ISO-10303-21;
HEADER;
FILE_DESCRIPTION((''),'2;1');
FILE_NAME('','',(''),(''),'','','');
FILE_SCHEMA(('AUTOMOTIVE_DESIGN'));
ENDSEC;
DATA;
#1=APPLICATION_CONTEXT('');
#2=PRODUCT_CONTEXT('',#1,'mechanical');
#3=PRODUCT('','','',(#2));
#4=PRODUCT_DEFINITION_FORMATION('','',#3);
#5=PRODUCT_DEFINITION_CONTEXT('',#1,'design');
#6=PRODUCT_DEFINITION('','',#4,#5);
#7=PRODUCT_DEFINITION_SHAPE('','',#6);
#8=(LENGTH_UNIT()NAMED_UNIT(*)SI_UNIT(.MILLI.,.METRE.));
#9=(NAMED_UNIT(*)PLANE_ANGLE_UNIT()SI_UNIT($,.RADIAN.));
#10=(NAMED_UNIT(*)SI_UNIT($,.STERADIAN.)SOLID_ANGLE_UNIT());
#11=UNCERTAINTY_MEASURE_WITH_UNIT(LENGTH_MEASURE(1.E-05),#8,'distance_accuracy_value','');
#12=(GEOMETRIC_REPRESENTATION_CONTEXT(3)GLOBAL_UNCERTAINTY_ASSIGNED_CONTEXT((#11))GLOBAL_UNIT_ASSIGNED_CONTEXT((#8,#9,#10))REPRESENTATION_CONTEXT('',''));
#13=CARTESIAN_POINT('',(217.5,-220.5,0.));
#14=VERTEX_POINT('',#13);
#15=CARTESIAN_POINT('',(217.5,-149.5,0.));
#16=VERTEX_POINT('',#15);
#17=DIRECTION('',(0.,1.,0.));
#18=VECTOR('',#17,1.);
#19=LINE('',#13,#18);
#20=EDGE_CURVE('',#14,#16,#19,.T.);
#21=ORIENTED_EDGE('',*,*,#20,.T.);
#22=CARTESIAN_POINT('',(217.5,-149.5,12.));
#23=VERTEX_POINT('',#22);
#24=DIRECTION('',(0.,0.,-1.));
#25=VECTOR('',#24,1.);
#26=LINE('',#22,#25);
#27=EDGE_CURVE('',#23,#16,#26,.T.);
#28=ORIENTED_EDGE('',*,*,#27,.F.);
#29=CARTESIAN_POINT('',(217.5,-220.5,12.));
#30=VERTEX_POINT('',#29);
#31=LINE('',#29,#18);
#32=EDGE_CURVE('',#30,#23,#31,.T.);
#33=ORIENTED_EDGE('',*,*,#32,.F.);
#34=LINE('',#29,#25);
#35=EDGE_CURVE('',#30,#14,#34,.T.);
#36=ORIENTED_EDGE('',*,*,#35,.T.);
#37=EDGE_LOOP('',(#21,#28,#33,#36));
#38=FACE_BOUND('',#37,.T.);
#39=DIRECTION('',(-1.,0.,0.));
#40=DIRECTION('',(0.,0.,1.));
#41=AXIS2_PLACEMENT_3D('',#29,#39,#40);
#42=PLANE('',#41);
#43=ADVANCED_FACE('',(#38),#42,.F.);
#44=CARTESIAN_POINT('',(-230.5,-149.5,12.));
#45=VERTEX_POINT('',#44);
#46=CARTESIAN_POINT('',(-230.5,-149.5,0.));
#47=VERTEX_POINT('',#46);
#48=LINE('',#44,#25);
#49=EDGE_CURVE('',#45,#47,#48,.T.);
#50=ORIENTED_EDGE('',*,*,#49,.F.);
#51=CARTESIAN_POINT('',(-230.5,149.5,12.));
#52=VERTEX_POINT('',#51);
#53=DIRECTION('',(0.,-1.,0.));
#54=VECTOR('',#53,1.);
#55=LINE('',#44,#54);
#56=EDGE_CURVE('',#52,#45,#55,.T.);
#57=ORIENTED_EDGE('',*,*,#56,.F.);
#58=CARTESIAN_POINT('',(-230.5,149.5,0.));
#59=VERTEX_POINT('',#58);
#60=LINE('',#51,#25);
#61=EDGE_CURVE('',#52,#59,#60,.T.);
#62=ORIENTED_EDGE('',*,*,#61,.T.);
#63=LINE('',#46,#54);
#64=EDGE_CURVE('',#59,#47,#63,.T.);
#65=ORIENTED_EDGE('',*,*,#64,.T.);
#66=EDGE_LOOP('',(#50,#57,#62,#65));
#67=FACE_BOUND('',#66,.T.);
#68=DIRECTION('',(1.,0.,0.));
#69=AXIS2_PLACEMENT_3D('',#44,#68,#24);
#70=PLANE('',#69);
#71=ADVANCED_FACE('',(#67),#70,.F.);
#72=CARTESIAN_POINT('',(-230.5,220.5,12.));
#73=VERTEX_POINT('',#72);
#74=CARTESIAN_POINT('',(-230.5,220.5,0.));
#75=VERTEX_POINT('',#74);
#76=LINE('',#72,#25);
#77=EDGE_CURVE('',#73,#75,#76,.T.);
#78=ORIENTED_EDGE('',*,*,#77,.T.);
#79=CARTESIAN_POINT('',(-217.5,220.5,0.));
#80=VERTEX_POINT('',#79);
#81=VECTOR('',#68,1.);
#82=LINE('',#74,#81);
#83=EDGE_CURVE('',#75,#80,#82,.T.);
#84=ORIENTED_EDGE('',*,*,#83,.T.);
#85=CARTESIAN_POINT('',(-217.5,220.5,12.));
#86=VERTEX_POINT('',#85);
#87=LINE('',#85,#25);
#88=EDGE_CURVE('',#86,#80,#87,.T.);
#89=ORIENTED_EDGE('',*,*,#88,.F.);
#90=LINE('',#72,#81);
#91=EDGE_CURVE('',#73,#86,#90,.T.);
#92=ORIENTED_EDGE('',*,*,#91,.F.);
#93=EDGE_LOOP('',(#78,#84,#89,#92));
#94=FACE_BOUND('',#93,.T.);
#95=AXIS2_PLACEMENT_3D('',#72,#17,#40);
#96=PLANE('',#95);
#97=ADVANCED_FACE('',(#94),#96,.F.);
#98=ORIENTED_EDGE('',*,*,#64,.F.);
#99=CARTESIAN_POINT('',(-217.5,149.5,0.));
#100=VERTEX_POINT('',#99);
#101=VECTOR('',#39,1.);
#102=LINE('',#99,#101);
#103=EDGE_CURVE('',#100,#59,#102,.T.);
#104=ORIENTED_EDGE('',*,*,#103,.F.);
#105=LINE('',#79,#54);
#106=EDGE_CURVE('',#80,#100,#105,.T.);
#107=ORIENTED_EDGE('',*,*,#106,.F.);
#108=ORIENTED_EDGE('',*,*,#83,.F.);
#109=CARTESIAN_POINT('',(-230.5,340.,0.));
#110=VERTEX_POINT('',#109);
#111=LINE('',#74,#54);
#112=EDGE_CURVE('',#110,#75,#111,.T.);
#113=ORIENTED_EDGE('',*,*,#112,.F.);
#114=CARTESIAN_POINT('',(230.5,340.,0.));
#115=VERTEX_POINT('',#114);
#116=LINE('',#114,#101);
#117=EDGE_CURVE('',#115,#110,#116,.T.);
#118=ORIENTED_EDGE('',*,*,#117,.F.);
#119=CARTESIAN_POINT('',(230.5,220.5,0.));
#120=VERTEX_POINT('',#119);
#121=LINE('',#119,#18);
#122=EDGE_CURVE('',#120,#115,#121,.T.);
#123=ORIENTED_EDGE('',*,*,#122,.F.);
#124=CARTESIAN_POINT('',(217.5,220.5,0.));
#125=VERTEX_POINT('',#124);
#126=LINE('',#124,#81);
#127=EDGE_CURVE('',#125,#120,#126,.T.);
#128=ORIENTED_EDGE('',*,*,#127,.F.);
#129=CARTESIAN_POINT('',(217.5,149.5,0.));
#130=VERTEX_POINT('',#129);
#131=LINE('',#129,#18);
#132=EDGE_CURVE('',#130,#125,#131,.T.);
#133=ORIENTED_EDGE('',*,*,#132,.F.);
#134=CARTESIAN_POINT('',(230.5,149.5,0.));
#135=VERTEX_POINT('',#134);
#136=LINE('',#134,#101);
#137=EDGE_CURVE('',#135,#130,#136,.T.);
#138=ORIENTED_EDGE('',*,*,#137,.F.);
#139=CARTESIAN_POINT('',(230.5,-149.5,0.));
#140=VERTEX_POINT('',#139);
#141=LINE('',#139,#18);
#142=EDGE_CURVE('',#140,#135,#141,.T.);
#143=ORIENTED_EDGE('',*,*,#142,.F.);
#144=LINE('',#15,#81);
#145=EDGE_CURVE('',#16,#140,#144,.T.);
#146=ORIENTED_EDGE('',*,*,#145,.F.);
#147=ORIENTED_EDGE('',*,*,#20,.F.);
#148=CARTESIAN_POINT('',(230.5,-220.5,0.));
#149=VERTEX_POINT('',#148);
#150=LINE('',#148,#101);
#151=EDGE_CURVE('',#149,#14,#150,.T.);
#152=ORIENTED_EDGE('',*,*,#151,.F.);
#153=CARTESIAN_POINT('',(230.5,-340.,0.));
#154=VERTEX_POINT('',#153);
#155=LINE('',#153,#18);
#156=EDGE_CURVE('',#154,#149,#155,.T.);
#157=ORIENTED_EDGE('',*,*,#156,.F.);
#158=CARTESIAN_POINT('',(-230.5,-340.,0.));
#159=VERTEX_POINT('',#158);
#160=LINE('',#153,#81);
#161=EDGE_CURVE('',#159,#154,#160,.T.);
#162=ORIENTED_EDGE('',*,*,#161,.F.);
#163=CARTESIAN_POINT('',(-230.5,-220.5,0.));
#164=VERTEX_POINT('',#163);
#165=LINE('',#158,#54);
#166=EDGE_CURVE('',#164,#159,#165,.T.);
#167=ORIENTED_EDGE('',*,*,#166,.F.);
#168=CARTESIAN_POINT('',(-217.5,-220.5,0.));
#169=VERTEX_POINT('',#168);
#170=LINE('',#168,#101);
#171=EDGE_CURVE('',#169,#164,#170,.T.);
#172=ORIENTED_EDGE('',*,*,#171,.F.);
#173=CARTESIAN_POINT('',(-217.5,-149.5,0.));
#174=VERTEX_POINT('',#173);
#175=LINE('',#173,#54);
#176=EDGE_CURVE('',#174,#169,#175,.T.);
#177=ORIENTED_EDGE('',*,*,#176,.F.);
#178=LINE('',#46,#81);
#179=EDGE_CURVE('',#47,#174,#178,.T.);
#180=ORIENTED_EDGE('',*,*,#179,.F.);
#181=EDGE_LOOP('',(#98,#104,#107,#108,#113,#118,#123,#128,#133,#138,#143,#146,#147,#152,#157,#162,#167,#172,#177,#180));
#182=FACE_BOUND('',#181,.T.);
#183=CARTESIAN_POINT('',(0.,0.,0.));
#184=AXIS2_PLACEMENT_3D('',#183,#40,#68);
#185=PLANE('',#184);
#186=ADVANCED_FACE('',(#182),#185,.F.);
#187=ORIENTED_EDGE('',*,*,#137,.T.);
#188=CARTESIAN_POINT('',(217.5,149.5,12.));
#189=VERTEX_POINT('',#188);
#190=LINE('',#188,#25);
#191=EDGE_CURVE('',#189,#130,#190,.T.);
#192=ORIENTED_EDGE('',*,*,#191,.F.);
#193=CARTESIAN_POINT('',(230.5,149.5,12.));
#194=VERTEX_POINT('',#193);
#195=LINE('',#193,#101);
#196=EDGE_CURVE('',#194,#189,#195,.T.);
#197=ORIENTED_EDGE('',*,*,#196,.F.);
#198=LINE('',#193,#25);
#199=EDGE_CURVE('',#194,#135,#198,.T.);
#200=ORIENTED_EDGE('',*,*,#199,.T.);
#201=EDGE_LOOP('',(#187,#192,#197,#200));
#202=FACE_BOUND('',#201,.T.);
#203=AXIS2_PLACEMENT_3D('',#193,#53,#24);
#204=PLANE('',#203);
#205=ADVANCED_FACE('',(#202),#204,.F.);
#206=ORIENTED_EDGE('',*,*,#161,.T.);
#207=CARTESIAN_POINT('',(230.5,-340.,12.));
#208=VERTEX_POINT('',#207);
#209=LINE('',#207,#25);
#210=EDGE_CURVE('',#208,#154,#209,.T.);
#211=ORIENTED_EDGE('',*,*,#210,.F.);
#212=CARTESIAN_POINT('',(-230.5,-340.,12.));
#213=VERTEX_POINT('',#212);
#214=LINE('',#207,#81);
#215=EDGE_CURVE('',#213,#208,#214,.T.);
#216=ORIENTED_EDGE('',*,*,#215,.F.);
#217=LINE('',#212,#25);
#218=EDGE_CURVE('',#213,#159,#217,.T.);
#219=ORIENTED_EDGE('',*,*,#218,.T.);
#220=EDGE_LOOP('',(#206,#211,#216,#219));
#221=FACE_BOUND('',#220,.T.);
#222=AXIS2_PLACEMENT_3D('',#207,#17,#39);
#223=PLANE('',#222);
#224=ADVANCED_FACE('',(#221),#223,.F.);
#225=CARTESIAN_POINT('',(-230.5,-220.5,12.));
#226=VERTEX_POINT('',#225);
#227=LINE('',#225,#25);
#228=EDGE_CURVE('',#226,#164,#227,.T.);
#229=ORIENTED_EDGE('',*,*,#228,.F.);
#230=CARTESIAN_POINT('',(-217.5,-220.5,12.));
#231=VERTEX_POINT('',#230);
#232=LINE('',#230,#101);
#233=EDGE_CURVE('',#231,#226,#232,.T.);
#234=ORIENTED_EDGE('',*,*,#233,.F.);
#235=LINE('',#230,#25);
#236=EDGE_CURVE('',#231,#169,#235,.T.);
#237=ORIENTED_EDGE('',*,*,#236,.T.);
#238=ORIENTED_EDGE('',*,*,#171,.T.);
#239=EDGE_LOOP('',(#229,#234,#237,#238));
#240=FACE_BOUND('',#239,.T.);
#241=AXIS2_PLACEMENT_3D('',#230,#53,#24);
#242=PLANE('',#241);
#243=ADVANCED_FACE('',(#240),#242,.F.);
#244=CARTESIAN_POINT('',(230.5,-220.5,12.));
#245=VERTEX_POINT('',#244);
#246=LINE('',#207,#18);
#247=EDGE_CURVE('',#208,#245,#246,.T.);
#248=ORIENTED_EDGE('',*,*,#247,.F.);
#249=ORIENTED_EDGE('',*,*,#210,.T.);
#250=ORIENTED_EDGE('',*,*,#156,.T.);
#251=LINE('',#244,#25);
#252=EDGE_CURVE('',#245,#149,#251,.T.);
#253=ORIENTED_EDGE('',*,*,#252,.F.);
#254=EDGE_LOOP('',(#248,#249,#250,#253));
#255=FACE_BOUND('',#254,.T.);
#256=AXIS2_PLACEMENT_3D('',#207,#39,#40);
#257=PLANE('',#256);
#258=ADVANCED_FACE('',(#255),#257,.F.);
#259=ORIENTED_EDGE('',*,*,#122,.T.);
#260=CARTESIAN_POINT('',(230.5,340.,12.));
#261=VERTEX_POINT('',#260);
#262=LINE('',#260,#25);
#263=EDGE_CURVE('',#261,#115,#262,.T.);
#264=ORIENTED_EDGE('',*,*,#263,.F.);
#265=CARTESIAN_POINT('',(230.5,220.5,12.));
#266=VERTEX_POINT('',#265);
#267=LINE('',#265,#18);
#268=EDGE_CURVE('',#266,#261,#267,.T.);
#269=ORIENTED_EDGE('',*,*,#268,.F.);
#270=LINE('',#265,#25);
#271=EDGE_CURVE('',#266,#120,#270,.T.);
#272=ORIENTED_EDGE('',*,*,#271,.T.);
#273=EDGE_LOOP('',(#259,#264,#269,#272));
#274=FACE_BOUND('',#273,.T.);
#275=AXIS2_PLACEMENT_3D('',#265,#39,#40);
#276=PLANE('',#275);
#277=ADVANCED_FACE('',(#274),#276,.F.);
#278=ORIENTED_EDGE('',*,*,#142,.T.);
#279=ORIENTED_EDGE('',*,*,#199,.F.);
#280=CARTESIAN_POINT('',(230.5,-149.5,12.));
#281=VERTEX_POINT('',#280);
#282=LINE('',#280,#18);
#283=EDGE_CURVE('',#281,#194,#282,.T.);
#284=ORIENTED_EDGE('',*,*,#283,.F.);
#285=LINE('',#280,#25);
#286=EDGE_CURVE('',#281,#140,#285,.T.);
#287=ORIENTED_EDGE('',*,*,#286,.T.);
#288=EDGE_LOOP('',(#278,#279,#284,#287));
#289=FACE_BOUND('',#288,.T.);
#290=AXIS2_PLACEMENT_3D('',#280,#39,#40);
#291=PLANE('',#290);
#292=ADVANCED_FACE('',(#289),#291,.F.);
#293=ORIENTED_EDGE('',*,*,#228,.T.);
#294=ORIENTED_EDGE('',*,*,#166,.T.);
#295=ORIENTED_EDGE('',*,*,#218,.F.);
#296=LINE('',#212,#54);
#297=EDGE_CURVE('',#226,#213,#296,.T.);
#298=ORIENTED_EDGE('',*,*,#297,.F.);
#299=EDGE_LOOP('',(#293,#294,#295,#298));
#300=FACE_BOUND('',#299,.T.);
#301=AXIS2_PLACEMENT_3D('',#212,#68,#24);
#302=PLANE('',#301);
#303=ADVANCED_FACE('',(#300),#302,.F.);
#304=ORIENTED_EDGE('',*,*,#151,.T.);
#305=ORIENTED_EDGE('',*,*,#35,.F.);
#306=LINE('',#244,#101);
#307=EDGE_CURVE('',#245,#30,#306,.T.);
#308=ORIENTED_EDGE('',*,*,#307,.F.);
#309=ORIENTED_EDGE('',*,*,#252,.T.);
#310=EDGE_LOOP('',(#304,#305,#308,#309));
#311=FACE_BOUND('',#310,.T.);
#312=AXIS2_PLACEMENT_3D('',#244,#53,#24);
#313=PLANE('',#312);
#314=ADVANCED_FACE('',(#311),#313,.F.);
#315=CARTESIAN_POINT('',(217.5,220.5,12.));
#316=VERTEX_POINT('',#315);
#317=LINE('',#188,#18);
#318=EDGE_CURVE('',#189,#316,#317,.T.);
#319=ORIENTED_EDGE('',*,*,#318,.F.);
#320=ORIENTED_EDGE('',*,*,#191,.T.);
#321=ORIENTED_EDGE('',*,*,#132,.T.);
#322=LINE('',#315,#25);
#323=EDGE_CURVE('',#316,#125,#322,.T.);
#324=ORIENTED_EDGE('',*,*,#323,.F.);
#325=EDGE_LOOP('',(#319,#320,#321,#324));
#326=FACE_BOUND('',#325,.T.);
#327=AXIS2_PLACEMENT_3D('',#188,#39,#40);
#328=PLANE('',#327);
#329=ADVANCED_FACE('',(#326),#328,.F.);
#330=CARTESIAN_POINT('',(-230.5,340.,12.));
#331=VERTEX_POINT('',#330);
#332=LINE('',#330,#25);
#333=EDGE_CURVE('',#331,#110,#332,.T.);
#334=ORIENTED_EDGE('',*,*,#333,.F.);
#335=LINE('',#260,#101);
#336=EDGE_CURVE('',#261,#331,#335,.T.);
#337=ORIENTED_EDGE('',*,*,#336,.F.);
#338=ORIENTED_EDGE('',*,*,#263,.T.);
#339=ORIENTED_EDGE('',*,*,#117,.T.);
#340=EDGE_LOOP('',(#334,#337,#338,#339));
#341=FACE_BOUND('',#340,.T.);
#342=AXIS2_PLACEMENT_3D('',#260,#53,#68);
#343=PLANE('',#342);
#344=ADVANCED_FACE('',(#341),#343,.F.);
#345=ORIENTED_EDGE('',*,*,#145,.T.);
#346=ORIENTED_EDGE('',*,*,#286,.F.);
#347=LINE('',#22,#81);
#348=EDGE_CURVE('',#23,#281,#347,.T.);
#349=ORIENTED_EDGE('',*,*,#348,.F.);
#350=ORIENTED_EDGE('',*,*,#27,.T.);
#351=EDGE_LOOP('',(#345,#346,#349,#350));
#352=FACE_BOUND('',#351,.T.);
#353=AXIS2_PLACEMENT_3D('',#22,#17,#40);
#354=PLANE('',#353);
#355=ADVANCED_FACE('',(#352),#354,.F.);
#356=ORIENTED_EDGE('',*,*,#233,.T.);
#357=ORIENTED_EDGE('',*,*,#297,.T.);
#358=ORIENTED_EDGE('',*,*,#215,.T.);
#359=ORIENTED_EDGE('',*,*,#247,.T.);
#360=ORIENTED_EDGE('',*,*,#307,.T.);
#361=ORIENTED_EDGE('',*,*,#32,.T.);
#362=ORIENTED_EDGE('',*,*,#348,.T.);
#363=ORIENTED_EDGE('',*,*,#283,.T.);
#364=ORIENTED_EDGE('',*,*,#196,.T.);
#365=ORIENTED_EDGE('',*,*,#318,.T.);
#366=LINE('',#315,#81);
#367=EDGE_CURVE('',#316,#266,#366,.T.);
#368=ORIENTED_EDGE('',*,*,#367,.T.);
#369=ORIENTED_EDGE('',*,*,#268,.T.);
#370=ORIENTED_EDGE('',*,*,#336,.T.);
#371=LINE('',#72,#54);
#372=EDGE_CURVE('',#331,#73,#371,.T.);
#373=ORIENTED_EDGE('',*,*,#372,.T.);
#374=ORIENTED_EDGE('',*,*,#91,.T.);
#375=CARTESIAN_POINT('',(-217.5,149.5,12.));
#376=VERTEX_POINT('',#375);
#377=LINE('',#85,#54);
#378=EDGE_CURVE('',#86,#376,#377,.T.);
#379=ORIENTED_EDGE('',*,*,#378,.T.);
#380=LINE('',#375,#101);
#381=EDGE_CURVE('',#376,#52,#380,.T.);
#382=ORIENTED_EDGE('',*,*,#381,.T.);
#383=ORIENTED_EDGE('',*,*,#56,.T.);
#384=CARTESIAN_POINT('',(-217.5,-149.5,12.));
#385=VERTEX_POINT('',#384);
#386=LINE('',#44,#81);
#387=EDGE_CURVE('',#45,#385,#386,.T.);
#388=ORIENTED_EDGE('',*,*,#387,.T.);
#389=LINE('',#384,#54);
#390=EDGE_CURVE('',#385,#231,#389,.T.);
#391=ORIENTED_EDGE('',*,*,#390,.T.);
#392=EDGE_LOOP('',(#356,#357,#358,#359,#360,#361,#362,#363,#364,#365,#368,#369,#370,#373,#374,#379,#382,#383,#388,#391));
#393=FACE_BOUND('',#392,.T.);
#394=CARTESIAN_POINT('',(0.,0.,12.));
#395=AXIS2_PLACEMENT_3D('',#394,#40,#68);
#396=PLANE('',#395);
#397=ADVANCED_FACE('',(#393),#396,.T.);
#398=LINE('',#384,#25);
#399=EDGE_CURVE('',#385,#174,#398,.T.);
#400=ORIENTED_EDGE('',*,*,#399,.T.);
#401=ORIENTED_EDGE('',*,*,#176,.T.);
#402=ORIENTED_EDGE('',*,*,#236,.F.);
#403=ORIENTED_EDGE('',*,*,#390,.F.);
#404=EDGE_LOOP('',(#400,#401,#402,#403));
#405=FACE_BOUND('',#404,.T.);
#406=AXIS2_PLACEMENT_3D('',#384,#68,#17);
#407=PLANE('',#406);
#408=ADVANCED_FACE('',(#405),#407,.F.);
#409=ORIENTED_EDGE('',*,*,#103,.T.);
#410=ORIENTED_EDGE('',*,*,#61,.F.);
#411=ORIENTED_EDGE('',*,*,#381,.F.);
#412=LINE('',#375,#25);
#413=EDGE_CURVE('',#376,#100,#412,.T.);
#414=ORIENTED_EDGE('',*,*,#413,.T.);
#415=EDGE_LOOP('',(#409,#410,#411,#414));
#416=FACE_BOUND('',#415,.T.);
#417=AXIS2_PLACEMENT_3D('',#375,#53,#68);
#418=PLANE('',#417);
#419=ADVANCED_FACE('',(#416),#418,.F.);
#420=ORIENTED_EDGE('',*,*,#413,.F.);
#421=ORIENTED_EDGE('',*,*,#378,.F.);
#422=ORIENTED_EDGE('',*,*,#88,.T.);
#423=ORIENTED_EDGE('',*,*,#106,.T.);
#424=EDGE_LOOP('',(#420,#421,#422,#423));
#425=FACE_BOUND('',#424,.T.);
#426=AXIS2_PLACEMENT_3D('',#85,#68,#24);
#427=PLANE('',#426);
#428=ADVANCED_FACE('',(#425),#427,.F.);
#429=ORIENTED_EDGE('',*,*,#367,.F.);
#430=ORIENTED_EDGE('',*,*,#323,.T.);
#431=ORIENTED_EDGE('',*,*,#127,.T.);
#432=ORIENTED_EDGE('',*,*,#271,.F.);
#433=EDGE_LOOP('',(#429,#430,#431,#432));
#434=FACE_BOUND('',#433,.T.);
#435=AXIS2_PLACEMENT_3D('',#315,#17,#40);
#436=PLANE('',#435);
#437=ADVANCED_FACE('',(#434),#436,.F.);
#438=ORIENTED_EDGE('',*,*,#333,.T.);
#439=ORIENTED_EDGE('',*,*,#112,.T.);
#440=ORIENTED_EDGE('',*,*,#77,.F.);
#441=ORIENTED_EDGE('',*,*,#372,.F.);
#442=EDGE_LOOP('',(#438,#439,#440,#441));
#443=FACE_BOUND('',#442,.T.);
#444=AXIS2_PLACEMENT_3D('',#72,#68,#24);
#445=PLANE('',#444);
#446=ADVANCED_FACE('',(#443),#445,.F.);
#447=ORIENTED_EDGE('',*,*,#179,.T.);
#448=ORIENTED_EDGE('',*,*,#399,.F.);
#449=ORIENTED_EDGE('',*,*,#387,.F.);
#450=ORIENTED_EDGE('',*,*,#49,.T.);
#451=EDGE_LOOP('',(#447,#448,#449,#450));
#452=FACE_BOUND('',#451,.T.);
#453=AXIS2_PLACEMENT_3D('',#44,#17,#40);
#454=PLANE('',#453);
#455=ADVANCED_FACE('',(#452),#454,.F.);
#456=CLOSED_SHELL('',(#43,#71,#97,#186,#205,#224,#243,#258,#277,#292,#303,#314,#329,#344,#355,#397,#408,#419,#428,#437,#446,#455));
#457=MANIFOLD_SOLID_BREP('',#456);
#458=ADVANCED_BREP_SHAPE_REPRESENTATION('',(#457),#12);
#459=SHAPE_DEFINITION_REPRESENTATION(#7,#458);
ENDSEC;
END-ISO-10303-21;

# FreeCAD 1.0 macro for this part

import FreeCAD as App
import Part
import Sketcher
from FreeCAD import Vector

doc = App.newDocument("Part")
body = doc.addObject("PartDesign::Body", "Body")

sketch1 = body.newObject("Sketcher::SketchObject", "Sketch")
sketch1.AttachmentSupport = (doc.getObject("XY_Plane"), [""])
sketch1.MapMode = "FlatFace"
sketch1.addGeometry([
    Part.LineSegment(Vector(-230, 220, 0), Vector(-218, 220, 0)),
    Part.LineSegment(Vector(-218, 220, 0), Vector(-218, 150, 0)),
    Part.LineSegment(Vector(-218, 150, 0), Vector(-230, 150, 0)),
    Part.LineSegment(Vector(-230, 150, 0), Vector(-230, -150, 0)),
    Part.LineSegment(Vector(-230, -150, 0), Vector(-218, -150, 0)),
    Part.LineSegment(Vector(-218, -150, 0), Vector(-218, -220, 0)),
    Part.LineSegment(Vector(-218, -220, 0), Vector(-230, -220, 0)),
    Part.LineSegment(Vector(-230, -220, 0), Vector(-230, -340, 0)),
    Part.LineSegment(Vector(-230, -340, 0), Vector(230, -340, 0)),
    Part.LineSegment(Vector(230, -340, 0), Vector(230, -220, 0)),
    Part.LineSegment(Vector(230, -220, 0), Vector(218, -220, 0)),
    Part.LineSegment(Vector(218, -220, 0), Vector(218, -150, 0)),
    Part.LineSegment(Vector(218, -150, 0), Vector(230, -150, 0)),
    Part.LineSegment(Vector(230, -150, 0), Vector(230, 150, 0)),
    Part.LineSegment(Vector(230, 150, 0), Vector(218, 150, 0)),
    Part.LineSegment(Vector(218, 150, 0), Vector(218, 220, 0)),
    Part.LineSegment(Vector(218, 220, 0), Vector(230, 220, 0)),
    Part.LineSegment(Vector(230, 220, 0), Vector(230, 340, 0)),
    Part.LineSegment(Vector(230, 340, 0), Vector(-230, 340, 0)),
    Part.LineSegment(Vector(-230, 340, 0), Vector(-230, 220, 0)),
], False)
sketch1.addConstraint([
    Sketcher.Constraint("Coincident", 0, 2, 1, 1),
    Sketcher.Constraint("Coincident", 1, 2, 2, 1),
    Sketcher.Constraint("Coincident", 2, 2, 3, 1),
    Sketcher.Constraint("Coincident", 3, 2, 4, 1),
    Sketcher.Constraint("Coincident", 4, 2, 5, 1),
    Sketcher.Constraint("Coincident", 5, 2, 6, 1),
    Sketcher.Constraint("Coincident", 6, 2, 7, 1),
    Sketcher.Constraint("Coincident", 7, 2, 8, 1),
    Sketcher.Constraint("Coincident", 8, 2, 9, 1),
    Sketcher.Constraint("Coincident", 9, 2, 10, 1),
    Sketcher.Constraint("Coincident", 10, 2, 11, 1),
    Sketcher.Constraint("Coincident", 11, 2, 12, 1),
    Sketcher.Constraint("Coincident", 12, 2, 13, 1),
    Sketcher.Constraint("Coincident", 13, 2, 14, 1),
    Sketcher.Constraint("Coincident", 14, 2, 15, 1),
    Sketcher.Constraint("Coincident", 15, 2, 16, 1),
    Sketcher.Constraint("Coincident", 16, 2, 17, 1),
    Sketcher.Constraint("Coincident", 17, 2, 18, 1),
    Sketcher.Constraint("Coincident", 18, 2, 19, 1),
    Sketcher.Constraint("Coincident", 19, 2, 0, 1),
    Sketcher.Constraint("Horizontal", 0),
    Sketcher.Constraint("Vertical", 1),
    Sketcher.Constraint("Horizontal", 2),
    Sketcher.Constraint("Vertical", 3),
    Sketcher.Constraint("Horizontal", 4),
    Sketcher.Constraint("Vertical", 5),
    Sketcher.Constraint("Horizontal", 6),
    Sketcher.Constraint("Vertical", 7),
    Sketcher.Constraint("Horizontal", 8),
    Sketcher.Constraint("Vertical", 9),
    Sketcher.Constraint("Horizontal", 10),
    Sketcher.Constraint("Vertical", 11),
    Sketcher.Constraint("Horizontal", 12),
    Sketcher.Constraint("Vertical", 13),
    Sketcher.Constraint("Horizontal", 14),
    Sketcher.Constraint("Vertical", 15),
    Sketcher.Constraint("Horizontal", 16),
    Sketcher.Constraint("Vertical", 17),
    Sketcher.Constraint("Horizontal", 18),
    Sketcher.Constraint("Vertical", 19),
    Sketcher.Constraint("Symmetric", 0, 2, 10, 2, -1, 1),
    Sketcher.Constraint("Symmetric", 2, 2, 12, 2, -1, 1),
    Sketcher.Constraint("Symmetric", 4, 2, 14, 2, -1, 1),
    Sketcher.Constraint("Symmetric", 6, 2, 16, 2, -1, 1),
    Sketcher.Constraint("Symmetric", 8, 2, 18, 2, -1, 1),
    Sketcher.Constraint("Symmetric", 6, 2, 9, 2, -2),
    Sketcher.Constraint("Symmetric", 4, 2, 11, 2, -2),
    Sketcher.Constraint("Vertical", 3, 2, 6, 2),
    Sketcher.Constraint("DistanceX", 0, 1, 0, 2, 13.0),
    Sketcher.Constraint("DistanceX", 8, 1, 8, 2, 461.0),
    Sketcher.Constraint("DistanceY", 1, 2, 1, 1, 71.0),
    Sketcher.Constraint("DistanceY", 3, 2, 3, 1, 299.0),
    Sketcher.Constraint("DistanceY", 7, 2, 7, 1, 119.5),
])
pad1 = body.newObject("PartDesign::Pad", "Pad")
pad1.Profile = sketch1
pad1.Length = 12

doc.recompute()
